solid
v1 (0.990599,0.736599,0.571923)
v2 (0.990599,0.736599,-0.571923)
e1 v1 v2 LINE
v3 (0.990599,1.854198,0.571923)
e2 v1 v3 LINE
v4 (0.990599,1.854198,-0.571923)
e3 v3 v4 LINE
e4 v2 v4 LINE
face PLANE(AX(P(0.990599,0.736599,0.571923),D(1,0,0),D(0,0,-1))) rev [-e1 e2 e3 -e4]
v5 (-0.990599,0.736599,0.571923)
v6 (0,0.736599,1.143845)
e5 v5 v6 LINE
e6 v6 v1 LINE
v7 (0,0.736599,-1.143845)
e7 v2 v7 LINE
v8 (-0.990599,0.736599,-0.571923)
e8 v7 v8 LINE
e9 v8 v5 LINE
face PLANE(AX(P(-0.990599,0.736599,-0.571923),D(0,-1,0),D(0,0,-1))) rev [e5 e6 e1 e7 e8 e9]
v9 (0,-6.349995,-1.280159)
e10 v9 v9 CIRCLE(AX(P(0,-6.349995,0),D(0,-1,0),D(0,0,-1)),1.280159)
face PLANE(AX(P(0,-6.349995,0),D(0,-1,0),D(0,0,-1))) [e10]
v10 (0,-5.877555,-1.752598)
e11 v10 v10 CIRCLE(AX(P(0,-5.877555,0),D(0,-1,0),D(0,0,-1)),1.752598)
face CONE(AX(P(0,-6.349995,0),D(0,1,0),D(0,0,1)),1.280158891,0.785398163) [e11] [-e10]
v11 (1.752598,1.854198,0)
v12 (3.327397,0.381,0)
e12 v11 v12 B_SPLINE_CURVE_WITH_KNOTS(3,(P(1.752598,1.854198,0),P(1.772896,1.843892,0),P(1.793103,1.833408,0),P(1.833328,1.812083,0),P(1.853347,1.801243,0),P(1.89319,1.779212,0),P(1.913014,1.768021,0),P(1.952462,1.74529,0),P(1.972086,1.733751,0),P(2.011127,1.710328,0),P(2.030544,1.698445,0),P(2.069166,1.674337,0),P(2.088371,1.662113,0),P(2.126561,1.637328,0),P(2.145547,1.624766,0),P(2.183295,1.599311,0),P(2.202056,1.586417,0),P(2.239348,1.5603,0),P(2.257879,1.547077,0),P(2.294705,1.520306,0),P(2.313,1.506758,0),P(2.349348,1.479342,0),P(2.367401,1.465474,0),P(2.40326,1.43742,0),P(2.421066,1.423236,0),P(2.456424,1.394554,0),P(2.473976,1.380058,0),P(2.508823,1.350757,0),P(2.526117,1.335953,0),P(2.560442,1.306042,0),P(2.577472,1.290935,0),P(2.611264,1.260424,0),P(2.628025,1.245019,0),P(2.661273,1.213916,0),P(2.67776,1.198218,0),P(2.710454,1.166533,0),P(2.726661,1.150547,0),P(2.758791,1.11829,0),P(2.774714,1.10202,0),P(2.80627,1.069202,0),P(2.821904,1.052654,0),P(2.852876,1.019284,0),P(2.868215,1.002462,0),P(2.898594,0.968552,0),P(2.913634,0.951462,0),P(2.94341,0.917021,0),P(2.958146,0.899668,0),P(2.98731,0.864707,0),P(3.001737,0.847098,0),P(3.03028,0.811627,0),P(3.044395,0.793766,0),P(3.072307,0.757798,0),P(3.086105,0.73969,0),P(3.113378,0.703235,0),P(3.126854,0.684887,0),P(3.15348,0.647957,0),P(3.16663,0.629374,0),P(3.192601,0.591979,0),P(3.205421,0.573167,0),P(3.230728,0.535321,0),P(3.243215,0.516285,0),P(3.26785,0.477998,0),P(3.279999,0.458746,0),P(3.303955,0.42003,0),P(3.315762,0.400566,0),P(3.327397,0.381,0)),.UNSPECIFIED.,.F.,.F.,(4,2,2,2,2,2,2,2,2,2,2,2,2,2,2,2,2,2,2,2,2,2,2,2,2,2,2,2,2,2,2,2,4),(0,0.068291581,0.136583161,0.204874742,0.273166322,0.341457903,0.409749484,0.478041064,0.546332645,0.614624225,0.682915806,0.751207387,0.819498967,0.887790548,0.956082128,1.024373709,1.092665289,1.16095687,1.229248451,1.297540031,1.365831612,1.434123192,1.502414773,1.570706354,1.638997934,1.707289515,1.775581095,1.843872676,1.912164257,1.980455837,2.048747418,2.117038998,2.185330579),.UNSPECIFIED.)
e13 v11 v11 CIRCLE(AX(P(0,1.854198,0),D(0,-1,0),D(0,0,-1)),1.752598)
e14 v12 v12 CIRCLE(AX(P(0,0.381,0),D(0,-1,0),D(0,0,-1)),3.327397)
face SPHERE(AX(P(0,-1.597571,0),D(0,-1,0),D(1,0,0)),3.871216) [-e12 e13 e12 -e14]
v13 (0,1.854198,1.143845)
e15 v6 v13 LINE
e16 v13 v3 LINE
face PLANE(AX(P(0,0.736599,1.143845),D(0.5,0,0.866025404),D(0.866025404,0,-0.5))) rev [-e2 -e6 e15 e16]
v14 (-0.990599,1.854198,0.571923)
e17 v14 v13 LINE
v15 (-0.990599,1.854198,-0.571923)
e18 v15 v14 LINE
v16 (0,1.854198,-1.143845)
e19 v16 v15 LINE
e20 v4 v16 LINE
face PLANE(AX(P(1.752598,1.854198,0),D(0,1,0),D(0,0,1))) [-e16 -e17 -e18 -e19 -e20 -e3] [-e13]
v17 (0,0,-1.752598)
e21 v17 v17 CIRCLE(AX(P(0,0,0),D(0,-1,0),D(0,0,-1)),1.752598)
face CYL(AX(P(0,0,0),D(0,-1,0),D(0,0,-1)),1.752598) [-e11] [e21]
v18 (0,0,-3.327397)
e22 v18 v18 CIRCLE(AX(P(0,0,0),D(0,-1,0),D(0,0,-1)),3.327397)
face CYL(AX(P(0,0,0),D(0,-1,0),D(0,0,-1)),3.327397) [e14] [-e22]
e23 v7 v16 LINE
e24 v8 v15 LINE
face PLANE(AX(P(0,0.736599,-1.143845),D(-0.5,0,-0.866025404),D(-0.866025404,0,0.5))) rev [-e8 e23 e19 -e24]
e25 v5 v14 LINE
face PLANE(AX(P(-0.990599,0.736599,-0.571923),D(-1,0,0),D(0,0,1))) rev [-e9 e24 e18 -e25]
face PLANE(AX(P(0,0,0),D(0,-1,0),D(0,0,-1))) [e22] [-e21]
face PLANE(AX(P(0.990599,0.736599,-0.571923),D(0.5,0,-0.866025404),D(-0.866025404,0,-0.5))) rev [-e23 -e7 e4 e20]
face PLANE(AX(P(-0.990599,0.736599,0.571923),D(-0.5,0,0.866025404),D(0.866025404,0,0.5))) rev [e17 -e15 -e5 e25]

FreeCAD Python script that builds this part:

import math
import FreeCAD as App
import Part
import Sketcher

V = App.Vector
Q = App.Units.Quantity

doc = App.newDocument("Part")
body = doc.addObject("PartDesign::Body", "Body")

# Sketch on XY plane
sketch1 = doc.addObject("Sketcher::SketchObject", "Sketch")
body.addObject(sketch1)
sketch1.AttachmentSupport = (doc.XY_Plane, [""])
sketch1.MapMode = "FlatFace"
sketch1.addGeometry([
    Part.LineSegment(V(0, 0, 0), V(3.327397, 0, 0)),  # 0
    Part.LineSegment(V(3.327397, 0, 0), V(3.327397, 0.381, 0)),  # 1
    Part.ArcOfCircle(Part.Circle(V(0, -1.597571, 0), V(0, 0, 1), 3.871216), math.radians(30.736993), math.radians(63.081311)),  # 2
    Part.LineSegment(V(1.752598, 1.854198, 0), V(0, 1.854198, 0)),  # 3
    Part.LineSegment(V(0, 1.854198, 0), V(0, 0, 0)),  # 4
], False)
sketch1.addConstraint([
    Sketcher.Constraint("Coincident", 0, 2, 1, 1),
    Sketcher.Constraint("Coincident", 1, 2, 2, 1),
    Sketcher.Constraint("Coincident", 2, 2, 3, 1),
    Sketcher.Constraint("Coincident", 3, 2, 4, 1),
    Sketcher.Constraint("Coincident", 4, 2, 0, 1),
    Sketcher.Constraint("Horizontal", 0),
    Sketcher.Constraint("Vertical", 1),
    Sketcher.Constraint("Horizontal", 3),
    Sketcher.Constraint("Vertical", 4),
    Sketcher.Constraint("Coincident", 4, 2, -1, 1),
    Sketcher.Constraint("PointOnObject", 2, 3, -2),
    Sketcher.Constraint("DistanceX", 0, 1, 0, 2, Q("0.1309999 in")),
    Sketcher.Constraint("DistanceX", 3, 2, 3, 1, Q("0.0689999 in")),
    Sketcher.Constraint("DistanceY", 1, 1, 1, 2, Q("0.015 in")),
    Sketcher.Constraint("DistanceY", 4, 2, 4, 1, Q("0.0729999 in")),
])
revolution = doc.addObject("PartDesign::Revolution", "Revolution")
body.addObject(revolution)
revolution.Profile = sketch1
revolution.ReferenceAxis = (sketch1, ["V_Axis"])
revolution.Angle = 360

# Sketch on XY plane
sketch2 = doc.addObject("Sketcher::SketchObject", "Sketch001")
body.addObject(sketch2)
sketch2.AttachmentSupport = (doc.XY_Plane, [""])
sketch2.MapMode = "FlatFace"
sketch2.addGeometry([
    Part.LineSegment(V(0, -6.349995, 0), V(1.280159, -6.349995, 0)),  # 0
    Part.LineSegment(V(1.280159, -6.349995, 0), V(1.752598, -5.877555, 0)),  # 1
    Part.LineSegment(V(1.752598, -5.877555, 0), V(1.752598, 0, 0)),  # 2
    Part.LineSegment(V(1.752598, 0, 0), V(0, 0, 0)),  # 3
    Part.LineSegment(V(0, 0, 0), V(0, -6.349995, 0)),  # 4
], False)
sketch2.addConstraint([
    Sketcher.Constraint("Coincident", 0, 2, 1, 1),
    Sketcher.Constraint("Coincident", 1, 2, 2, 1),
    Sketcher.Constraint("Coincident", 2, 2, 3, 1),
    Sketcher.Constraint("Coincident", 3, 2, 4, 1),
    Sketcher.Constraint("Coincident", 4, 2, 0, 1),
    Sketcher.Constraint("Horizontal", 0),
    Sketcher.Constraint("Vertical", 2),
    Sketcher.Constraint("Horizontal", 3),
    Sketcher.Constraint("Vertical", 4),
    Sketcher.Constraint("Coincident", 3, 2, -1, 1),
    Sketcher.Constraint("Angle", 1, Q("45 deg")),
    Sketcher.Constraint("DistanceX", 3, 2, 3, 1, Q("0.0689999 in")),
    Sketcher.Constraint("DistanceX", 0, 1, 0, 2, Q("0.0504 in")),
    Sketcher.Constraint("DistanceY", 2, 1, 2, 2, 5.877555),
])
revolution2 = doc.addObject("PartDesign::Revolution", "Revolution001")
body.addObject(revolution2)
revolution2.Profile = sketch2
revolution2.ReferenceAxis = (sketch2, ["V_Axis"])
revolution2.Angle = 360

# Sketch on XZ plane
sketch3 = doc.addObject("Sketcher::SketchObject", "Sketch002")
body.addObject(sketch3)
sketch3.AttachmentSupport = (doc.XZ_Plane, [""])
sketch3.MapMode = "FlatFace"
sketch3.AttachmentOffset = App.Placement(V(0, 0, -0.0729999 * 25.4), App.Rotation())
sketch3.addGeometry([
    Part.LineSegment(V(-0.990599, 0.571923, 0), V(0, 1.143845, 0)),  # 0
    Part.LineSegment(V(0, 1.143845, 0), V(0.990599, 0.571923, 0)),  # 1
    Part.LineSegment(V(0.990599, 0.571923, 0), V(0.990599, -0.571923, 0)),  # 2
    Part.LineSegment(V(0.990599, -0.571923, 0), V(0, -1.143845, 0)),  # 3
    Part.LineSegment(V(0, -1.143845, 0), V(-0.990599, -0.571923, 0)),  # 4
    Part.LineSegment(V(-0.990599, -0.571923, 0), V(-0.990599, 0.571923, 0)),  # 5
], False)
sketch3.addConstraint([
    Sketcher.Constraint("Coincident", 0, 2, 1, 1),
    Sketcher.Constraint("Coincident", 1, 2, 2, 1),
    Sketcher.Constraint("Coincident", 2, 2, 3, 1),
    Sketcher.Constraint("Coincident", 3, 2, 4, 1),
    Sketcher.Constraint("Coincident", 4, 2, 5, 1),
    Sketcher.Constraint("Coincident", 5, 2, 0, 1),
    Sketcher.Constraint("Vertical", 2),
    Sketcher.Constraint("Vertical", 5),
    Sketcher.Constraint("Symmetric", 0, 2, 3, 2, -1, 1),
    Sketcher.Constraint("Symmetric", 1, 2, 4, 2, -1, 1),
    Sketcher.Constraint("PointOnObject", 0, 2, -2),
    Sketcher.Constraint("Parallel", 0, 3),
    Sketcher.Constraint("Horizontal", 2, 2, 4, 2),
    Sketcher.Constraint("Angle", 0, Q("30 deg")),
    Sketcher.Constraint("DistanceX", -1, 1, 1, 2, Q("0.039 in")),
    Sketcher.Constraint("DistanceY", 2, 2, 2, 1, 1.143845),
])
pocket1 = doc.addObject("PartDesign::Pocket", "Pocket")
body.addObject(pocket1)
pocket1.Profile = sketch3
pocket1.Length = Q("0.044 in")
pocket1.Reversed = True

doc.recompute()
